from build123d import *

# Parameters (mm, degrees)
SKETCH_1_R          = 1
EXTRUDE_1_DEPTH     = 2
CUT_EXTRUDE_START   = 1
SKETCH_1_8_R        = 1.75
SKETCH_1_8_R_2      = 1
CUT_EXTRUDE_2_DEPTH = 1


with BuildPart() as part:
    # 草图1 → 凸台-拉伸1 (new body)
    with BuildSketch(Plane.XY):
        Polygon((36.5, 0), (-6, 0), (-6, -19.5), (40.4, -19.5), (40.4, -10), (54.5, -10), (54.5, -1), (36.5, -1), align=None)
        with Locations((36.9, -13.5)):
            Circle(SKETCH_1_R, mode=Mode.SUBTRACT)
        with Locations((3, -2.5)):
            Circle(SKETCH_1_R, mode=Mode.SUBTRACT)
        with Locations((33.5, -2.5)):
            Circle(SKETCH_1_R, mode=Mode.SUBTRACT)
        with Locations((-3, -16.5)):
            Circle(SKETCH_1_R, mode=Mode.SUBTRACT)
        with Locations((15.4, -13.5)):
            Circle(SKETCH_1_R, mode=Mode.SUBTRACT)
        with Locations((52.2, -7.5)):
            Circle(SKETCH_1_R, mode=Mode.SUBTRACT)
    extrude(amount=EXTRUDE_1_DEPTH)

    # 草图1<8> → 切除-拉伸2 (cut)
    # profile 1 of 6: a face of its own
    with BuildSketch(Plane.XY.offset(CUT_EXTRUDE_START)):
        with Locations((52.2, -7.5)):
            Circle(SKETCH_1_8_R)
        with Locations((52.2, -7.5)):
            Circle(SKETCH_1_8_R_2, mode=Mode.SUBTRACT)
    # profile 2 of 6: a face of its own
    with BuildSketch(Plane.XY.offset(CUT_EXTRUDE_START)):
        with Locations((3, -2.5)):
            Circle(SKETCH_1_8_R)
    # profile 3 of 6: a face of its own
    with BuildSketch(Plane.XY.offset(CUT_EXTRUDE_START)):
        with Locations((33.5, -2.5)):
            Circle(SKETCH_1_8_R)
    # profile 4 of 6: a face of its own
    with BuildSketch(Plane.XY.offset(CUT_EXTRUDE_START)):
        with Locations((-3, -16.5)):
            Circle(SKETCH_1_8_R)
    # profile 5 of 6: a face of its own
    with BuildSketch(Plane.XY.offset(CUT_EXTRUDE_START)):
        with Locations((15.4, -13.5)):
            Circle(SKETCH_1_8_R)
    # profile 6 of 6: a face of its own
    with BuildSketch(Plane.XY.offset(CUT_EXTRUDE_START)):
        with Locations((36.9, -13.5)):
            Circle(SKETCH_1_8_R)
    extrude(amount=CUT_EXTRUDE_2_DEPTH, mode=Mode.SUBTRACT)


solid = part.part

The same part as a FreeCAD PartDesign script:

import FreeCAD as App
import Part
import Sketcher

V = App.Vector
Q = App.Units.Quantity


def add_polygon(sketch, points):
    """Adds a closed chain of lines whose ends are joined by coincident constraints."""
    first, n = sketch.GeometryCount, len(points)
    for a, b in zip(points, points[1:] + points[:1]):
        sketch.addGeometry(Part.LineSegment(App.Vector(*a, 0), App.Vector(*b, 0)), False)
    for i in range(n):
        sketch.addConstraint(Sketcher.Constraint("Coincident", first + i, 2, first + (i + 1) % n, 1))

doc = App.newDocument("Part")
body = doc.addObject("PartDesign::Body", "Body")

# Sketch on XY plane
sketch1 = body.newObject("Sketcher::SketchObject", "Sketch")
sketch1.AttachmentSupport = (doc.getObject("XY_Plane"), [""])
sketch1.MapMode = "FlatFace"
add_polygon(sketch1, [(36.5, 0), (-6, 0), (-6, -19.5), (40.4, -19.5), (40.4, -10), (54.5, -10), (54.5, -1), (36.5, -1)])  # lines 0-7
sketch1.addGeometry(Part.Circle(V(-3, -16.5, 0), V(0, 0, 1), 1), False)  # 8
sketch1.addGeometry(Part.Circle(V(15.4, -13.5, 0), V(0, 0, 1), 1), False)  # 9
sketch1.addGeometry(Part.Circle(V(36.9, -13.5, 0), V(0, 0, 1), 1), False)  # 10
sketch1.addGeometry(Part.Circle(V(3, -2.5, 0), V(0, 0, 1), 1), False)  # 11
sketch1.addGeometry(Part.Circle(V(52.2, -7.5, 0), V(0, 0, 1), 1), False)  # 12
sketch1.addGeometry(Part.Circle(V(33.5, -2.5, 0), V(0, 0, 1), 1), False)  # 13
sketch1.addConstraint(Sketcher.Constraint("Horizontal", 0))
sketch1.addConstraint(Sketcher.Constraint("Vertical", 1))
sketch1.addConstraint(Sketcher.Constraint("Horizontal", 2))
sketch1.addConstraint(Sketcher.Constraint("Vertical", 3))
sketch1.addConstraint(Sketcher.Constraint("Horizontal", 4))
sketch1.addConstraint(Sketcher.Constraint("Vertical", 5))
sketch1.addConstraint(Sketcher.Constraint("Horizontal", 6))
sketch1.addConstraint(Sketcher.Constraint("Vertical", 7))
sketch1.addConstraint(Sketcher.Constraint("Equal", 8, 9))
sketch1.addConstraint(Sketcher.Constraint("Equal", 9, 10))
sketch1.addConstraint(Sketcher.Constraint("Equal", 10, 11))
sketch1.addConstraint(Sketcher.Constraint("Equal", 11, 12))
sketch1.addConstraint(Sketcher.Constraint("Equal", 12, 13))
sketch1.addConstraint(Sketcher.Constraint("PointOnObject", 0, 2, -1))
sketch1.addConstraint(Sketcher.Constraint("Horizontal", 9, 3, 10, 3))
sketch1.addConstraint(Sketcher.Constraint("Horizontal", 11, 3, 13, 3))
sketch1.addConstraint(Sketcher.Constraint("Diameter", 8, Q("2 mm")))
sketch1.addConstraint(Sketcher.Constraint("DistanceX", 6, 2, 6, 1, Q("18 mm")))
sketch1.addConstraint(Sketcher.Constraint("DistanceY", 5, 1, 5, 2, Q("9 mm")))
sketch1.addConstraint(Sketcher.Constraint("DistanceY", 7, 1, 7, 2, Q("1 mm")))
sketch1.addConstraint(Sketcher.Constraint("DistanceX", 0, 2, 0, 1, Q("42.5 mm")))
sketch1.addConstraint(Sketcher.Constraint("DistanceX", 2, 1, 2, 2, Q("46.4 mm")))
sketch1.addConstraint(Sketcher.Constraint("DistanceY", 1, 2, 1, 1, Q("19.5 mm")))
sketch1.addConstraint(Sketcher.Constraint("DistanceX", 8, 3, -1, 1, Q("3 mm")))
sketch1.addConstraint(Sketcher.Constraint("DistanceX", -1, 1, 11, 3, Q("3 mm")))
sketch1.addConstraint(Sketcher.Constraint("DistanceX", 0, 2, -1, 1, Q("6 mm")))
sketch1.addConstraint(Sketcher.Constraint("DistanceY", 8, 3, 9, 3, Q("3 mm")))
sketch1.addConstraint(Sketcher.Constraint("DistanceY", 8, 3, 11, 3, Q("14 mm")))
sketch1.addConstraint(Sketcher.Constraint("DistanceY", 10, 3, 12, 3, Q("6 mm")))
sketch1.addConstraint(Sketcher.Constraint("DistanceY", 1, 2, 8, 3, Q("3 mm")))
sketch1.addConstraint(Sketcher.Constraint("DistanceX", 9, 3, 2, 2, Q("25 mm")))
sketch1.addConstraint(Sketcher.Constraint("DistanceX", 13, 3, 4, 2, Q("21 mm")))
sketch1.addConstraint(Sketcher.Constraint("DistanceX", -1, 1, 10, 3, Q("36.9 mm")))
sketch1.addConstraint(Sketcher.Constraint("DistanceX", -1, 1, 12, 3, Q("52.2 mm")))
pad1 = body.newObject("PartDesign::Pad", "Pad")
pad1.Profile = sketch1
pad1.Length = 2

# Sketch on XY plane
sketch2 = body.newObject("Sketcher::SketchObject", "Sketch001")
sketch2.AttachmentSupport = (doc.getObject("XY_Plane"), [""])
sketch2.MapMode = "FlatFace"
sketch2.AttachmentOffset = App.Placement(V(0, 0, 1), App.Rotation())
sketch2.addGeometry(Part.Circle(V(52.2, -7.5, 0), V(0, 0, 1), 1.75), False)
sketch2.addGeometry(Part.Circle(V(52.2, -7.5, 0), V(0, 0, 1), 1), False)
sketch2.addGeometry(Part.Circle(V(3, -2.5, 0), V(0, 0, 1), 1.75), False)
sketch2.addGeometry(Part.Circle(V(33.5, -2.5, 0), V(0, 0, 1), 1.75), False)
sketch2.addGeometry(Part.Circle(V(-3, -16.5, 0), V(0, 0, 1), 1.75), False)
sketch2.addGeometry(Part.Circle(V(15.4, -13.5, 0), V(0, 0, 1), 1.75), False)
sketch2.addGeometry(Part.Circle(V(36.9, -13.5, 0), V(0, 0, 1), 1.75), False)
sketch2.addConstraint(Sketcher.Constraint("Coincident", 1, 3, 0, 3))
sketch2.addConstraint(Sketcher.Constraint("Equal", 0, 2))
sketch2.addConstraint(Sketcher.Constraint("Equal", 2, 3))
sketch2.addConstraint(Sketcher.Constraint("Equal", 3, 4))
sketch2.addConstraint(Sketcher.Constraint("Equal", 4, 5))
sketch2.addConstraint(Sketcher.Constraint("Equal", 5, 6))
sketch2.addConstraint(Sketcher.Constraint("Horizontal", 2, 3, 3, 3))
sketch2.addConstraint(Sketcher.Constraint("Horizontal", 5, 3, 6, 3))
sketch2.addConstraint(Sketcher.Constraint("Diameter", 1, Q("2 mm")))
sketch2.addConstraint(Sketcher.Constraint("Diameter", 0, Q("3.5 mm")))
sketch2.addConstraint(Sketcher.Constraint("DistanceX", -1, 1, 2, 3, Q("3 mm")))
sketch2.addConstraint(Sketcher.Constraint("DistanceX", 4, 3, -1, 1, Q("3 mm")))
sketch2.addConstraint(Sketcher.Constraint("DistanceY", 0, 3, 2, 3, Q("5 mm")))
sketch2.addConstraint(Sketcher.Constraint("DistanceY", 4, 3, 2, 3, Q("14 mm")))
sketch2.addConstraint(Sketcher.Constraint("DistanceY", 5, 3, 2, 3, Q("11 mm")))
sketch2.addConstraint(Sketcher.Constraint("DistanceX", -1, 1, 0, 3, Q("52.2 mm")))
sketch2.addConstraint(Sketcher.Constraint("DistanceY", 0, 3, -1, 1, Q("7.5 mm")))
sketch2.addConstraint(Sketcher.Constraint("DistanceX", -1, 1, 3, 3, Q("33.5 mm")))
sketch2.addConstraint(Sketcher.Constraint("DistanceX", -1, 1, 5, 3, Q("15.4 mm")))
sketch2.addConstraint(Sketcher.Constraint("DistanceX", -1, 1, 6, 3, Q("36.9 mm")))
pocket1 = body.newObject("PartDesign::Pocket", "Pocket")
pocket1.Profile = sketch2
pocket1.Length = 1
pocket1.Reversed = True

doc.recompute()
